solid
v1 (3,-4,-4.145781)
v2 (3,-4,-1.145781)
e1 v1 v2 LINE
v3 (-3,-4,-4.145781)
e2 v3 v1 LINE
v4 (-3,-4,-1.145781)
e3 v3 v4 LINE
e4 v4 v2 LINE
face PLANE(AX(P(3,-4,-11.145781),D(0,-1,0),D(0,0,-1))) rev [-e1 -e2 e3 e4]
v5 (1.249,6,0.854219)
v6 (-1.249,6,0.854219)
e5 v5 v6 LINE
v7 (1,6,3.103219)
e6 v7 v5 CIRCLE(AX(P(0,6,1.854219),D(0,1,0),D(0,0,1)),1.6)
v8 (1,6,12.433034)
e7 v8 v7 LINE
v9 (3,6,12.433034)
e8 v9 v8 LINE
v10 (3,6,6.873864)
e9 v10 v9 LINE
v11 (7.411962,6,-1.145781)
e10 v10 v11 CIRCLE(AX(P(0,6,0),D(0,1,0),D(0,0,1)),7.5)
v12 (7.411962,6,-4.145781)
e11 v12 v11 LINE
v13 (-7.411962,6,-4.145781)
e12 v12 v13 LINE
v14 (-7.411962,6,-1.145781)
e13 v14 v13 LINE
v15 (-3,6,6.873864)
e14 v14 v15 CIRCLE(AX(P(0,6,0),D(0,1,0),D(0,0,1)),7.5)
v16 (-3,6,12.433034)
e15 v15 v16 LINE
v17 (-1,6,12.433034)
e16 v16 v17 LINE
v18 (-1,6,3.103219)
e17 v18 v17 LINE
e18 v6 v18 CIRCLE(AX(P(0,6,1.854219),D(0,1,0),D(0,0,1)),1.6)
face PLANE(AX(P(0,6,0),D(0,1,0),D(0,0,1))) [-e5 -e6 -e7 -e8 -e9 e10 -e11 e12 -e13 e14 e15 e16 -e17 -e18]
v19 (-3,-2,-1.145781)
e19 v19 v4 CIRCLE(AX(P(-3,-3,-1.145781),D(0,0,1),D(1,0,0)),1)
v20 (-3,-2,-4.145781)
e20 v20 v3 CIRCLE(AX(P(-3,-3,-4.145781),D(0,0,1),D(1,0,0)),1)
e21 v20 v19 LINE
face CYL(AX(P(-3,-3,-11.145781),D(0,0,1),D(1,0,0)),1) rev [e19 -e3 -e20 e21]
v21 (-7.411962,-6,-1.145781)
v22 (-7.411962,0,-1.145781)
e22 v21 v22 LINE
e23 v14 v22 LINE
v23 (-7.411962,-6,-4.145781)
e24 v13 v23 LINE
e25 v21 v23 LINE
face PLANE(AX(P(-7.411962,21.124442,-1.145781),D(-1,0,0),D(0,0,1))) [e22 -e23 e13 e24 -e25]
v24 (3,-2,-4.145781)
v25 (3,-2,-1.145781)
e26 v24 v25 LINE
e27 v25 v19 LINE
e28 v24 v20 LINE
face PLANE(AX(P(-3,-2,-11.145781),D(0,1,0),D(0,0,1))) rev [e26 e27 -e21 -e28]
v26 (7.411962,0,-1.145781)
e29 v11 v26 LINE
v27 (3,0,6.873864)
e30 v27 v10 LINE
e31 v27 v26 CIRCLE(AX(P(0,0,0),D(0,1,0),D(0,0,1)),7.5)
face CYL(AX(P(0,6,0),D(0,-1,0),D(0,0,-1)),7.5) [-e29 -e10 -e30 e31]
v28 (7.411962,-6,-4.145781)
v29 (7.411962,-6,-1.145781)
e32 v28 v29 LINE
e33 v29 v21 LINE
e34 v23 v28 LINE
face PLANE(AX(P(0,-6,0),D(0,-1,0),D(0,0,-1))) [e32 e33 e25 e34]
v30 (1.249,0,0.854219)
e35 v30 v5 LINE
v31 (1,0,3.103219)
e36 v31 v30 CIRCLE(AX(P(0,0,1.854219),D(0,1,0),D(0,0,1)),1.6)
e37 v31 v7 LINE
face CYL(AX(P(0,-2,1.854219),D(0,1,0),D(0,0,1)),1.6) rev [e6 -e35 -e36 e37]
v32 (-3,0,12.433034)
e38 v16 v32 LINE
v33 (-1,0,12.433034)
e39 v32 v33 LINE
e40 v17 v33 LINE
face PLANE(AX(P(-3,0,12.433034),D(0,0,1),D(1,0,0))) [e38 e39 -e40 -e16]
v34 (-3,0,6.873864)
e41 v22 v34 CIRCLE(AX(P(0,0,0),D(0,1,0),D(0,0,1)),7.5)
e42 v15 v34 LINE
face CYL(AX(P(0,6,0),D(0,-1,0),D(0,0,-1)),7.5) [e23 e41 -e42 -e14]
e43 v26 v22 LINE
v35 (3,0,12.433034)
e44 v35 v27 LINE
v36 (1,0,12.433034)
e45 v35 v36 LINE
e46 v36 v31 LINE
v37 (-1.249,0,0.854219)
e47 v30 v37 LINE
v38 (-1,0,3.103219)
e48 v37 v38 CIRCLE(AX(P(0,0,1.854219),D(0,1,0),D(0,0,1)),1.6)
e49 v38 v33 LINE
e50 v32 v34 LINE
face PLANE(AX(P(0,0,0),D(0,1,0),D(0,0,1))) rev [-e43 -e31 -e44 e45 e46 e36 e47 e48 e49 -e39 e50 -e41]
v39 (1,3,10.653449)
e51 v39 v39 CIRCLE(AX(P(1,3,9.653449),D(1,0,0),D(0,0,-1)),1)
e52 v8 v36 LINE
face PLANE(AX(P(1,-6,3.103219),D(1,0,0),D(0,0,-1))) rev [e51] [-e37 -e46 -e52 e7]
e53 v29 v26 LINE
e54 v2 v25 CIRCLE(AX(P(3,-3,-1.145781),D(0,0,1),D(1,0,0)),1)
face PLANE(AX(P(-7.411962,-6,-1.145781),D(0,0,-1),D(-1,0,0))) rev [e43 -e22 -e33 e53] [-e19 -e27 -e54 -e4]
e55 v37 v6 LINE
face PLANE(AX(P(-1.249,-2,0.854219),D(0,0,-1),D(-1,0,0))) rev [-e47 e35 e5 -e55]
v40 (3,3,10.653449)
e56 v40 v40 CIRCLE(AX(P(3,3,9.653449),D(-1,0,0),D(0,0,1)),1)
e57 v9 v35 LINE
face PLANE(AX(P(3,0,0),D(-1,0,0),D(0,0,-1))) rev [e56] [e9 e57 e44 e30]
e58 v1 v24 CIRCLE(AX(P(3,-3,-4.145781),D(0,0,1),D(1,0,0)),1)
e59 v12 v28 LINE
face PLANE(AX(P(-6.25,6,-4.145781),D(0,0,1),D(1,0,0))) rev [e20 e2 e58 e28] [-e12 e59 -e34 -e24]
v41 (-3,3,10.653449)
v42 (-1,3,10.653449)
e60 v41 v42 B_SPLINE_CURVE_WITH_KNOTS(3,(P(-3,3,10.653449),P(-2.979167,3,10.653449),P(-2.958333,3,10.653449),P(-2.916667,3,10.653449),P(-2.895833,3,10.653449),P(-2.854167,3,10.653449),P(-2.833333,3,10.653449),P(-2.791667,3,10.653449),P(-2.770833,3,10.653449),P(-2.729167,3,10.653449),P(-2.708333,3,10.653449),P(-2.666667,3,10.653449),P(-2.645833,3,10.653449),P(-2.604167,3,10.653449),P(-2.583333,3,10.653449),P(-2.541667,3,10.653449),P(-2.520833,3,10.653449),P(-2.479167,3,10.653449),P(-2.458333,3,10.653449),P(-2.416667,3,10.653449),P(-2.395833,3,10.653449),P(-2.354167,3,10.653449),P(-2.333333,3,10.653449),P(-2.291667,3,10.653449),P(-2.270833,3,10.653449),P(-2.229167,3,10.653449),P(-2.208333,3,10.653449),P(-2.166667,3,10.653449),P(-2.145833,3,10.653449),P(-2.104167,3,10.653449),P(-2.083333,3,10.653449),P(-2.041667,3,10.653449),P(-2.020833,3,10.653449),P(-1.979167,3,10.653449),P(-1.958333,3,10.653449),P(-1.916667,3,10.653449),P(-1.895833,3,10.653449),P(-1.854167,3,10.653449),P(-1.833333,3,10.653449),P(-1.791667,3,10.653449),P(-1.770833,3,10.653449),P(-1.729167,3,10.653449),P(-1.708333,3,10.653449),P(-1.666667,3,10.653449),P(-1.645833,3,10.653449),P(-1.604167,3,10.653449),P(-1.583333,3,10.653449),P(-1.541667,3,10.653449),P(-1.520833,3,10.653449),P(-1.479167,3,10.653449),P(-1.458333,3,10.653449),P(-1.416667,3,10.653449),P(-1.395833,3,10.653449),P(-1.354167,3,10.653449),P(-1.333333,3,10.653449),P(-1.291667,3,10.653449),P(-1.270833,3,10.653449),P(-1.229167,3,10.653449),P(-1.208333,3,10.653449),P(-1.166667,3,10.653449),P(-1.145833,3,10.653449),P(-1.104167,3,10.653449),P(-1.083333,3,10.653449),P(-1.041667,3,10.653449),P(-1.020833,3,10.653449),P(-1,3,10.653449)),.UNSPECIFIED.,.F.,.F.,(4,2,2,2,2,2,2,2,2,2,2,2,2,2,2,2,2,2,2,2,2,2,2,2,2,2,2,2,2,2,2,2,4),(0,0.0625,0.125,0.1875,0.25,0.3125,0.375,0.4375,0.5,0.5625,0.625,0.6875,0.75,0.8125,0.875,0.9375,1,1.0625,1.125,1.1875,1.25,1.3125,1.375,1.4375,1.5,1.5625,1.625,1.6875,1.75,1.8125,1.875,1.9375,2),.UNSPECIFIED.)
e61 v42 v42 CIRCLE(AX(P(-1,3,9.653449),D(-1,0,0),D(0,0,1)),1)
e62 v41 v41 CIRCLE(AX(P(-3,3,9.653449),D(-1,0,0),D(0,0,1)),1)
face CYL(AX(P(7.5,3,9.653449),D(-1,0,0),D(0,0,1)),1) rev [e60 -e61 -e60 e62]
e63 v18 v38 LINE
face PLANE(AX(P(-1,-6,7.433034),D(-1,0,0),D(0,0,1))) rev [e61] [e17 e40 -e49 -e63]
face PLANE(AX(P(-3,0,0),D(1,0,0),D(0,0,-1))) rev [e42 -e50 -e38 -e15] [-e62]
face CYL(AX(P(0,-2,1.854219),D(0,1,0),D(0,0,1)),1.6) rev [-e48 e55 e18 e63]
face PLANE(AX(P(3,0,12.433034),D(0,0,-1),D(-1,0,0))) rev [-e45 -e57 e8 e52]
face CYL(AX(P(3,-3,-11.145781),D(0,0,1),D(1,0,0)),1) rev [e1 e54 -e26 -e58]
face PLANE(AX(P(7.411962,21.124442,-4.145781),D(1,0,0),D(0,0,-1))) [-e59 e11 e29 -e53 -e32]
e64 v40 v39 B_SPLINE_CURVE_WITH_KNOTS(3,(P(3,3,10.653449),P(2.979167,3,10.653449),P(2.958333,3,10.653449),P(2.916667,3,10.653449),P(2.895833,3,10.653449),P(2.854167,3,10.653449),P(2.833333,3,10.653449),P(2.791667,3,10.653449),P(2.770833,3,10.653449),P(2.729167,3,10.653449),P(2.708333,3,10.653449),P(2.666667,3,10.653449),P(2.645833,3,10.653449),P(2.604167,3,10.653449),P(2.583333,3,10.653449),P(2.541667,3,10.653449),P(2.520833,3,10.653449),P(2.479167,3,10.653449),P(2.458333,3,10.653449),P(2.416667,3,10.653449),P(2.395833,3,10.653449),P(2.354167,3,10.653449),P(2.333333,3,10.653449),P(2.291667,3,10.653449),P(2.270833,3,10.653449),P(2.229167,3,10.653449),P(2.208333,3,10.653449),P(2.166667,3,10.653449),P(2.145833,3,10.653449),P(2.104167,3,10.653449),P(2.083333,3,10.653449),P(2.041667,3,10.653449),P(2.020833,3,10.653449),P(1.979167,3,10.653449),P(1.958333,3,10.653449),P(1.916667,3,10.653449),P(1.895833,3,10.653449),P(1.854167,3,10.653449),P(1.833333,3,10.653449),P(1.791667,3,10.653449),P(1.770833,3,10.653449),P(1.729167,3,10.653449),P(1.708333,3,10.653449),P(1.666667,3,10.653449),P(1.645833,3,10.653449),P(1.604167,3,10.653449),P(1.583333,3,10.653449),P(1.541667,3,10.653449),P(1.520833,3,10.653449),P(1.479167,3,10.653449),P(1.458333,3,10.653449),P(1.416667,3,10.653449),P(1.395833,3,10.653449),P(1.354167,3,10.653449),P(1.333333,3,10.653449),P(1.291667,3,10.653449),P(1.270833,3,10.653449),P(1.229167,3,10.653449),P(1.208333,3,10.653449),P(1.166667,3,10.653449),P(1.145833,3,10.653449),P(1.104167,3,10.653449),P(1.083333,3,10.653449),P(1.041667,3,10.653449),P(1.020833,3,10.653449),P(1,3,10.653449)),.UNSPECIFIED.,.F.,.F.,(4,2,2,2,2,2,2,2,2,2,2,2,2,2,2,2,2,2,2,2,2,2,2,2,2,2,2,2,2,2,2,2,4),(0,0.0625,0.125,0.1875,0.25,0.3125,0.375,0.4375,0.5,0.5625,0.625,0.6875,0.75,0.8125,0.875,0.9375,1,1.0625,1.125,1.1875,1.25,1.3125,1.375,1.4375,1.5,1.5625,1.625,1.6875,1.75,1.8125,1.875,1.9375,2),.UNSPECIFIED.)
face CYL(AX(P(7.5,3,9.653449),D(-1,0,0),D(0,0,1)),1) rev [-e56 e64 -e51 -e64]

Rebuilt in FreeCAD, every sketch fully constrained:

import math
import FreeCAD as App
import Part
import Sketcher


def add_polygon(sketch, points):
    """Adds a closed chain of lines whose ends are joined by coincident constraints."""
    first, n = sketch.GeometryCount, len(points)
    for a, b in zip(points, points[1:] + points[:1]):
        sketch.addGeometry(Part.LineSegment(App.Vector(*a, 0), App.Vector(*b, 0)), False)
    for i in range(n):
        sketch.addConstraint(Sketcher.Constraint("Coincident", first + i, 2, first + (i + 1) % n, 1))

doc = App.newDocument("Part")
params = doc.addObject("Spreadsheet::Sheet", "Params")
for row, (alias, value) in enumerate([
    ("sketch1_radius", "7.5 mm"),
    ("sketch1_width", "12.5 mm"),
    ("pad1_length", "6 mm"),
    ("sketch2_radius", "7.5 mm"),
    ("sketch2_width", "12.5 mm"),
    ("pad2_length", "6 mm"),
    ("sketch3_radius", "1.6 mm"),
    ("pocket1_length", "8 mm"),
    ("sketch4_height", "3 mm"),
    ("pad3_length", "12 mm"),
    ("sketch5_radius", "1 mm"),
    ("sketch5_width", "6 mm"),
    ("pocket2_length", "10 mm"),
    ("sketch6_radius", "7.5 mm"),
    ("sketch6_radius2", "1.6 mm"),
    ("sketch7_width", "6 mm"),
    ("sketch7_height", "7 mm"),
    ("pad4_length", "2 mm"),
    ("sketch8_diameter", "2 mm"),
], start=1):
    params.set(f"A{row}", alias)
    params.set(f"B{row}", "=" + value)
    params.setAlias(f"B{row}", alias)

body = doc.addObject("PartDesign::Body", "Body")

sketch1 = body.newObject("Sketcher::SketchObject", "Sketch")
sketch1.AttachmentSupport = (doc.getObject("XZ_Plane"), [""])
sketch1.MapMode = "FlatFace"
sketch1.addGeometry([
    Part.LineSegment(App.Vector(6, -4, 0), App.Vector(-6, -4, 0)),
    Part.ArcOfCircle(Part.Circle(App.Vector(0, 0, 0), App.Vector(0, 0, 1), 8), math.radians(-34), math.radians(214)),
], False)
sketch1.addConstraint([
    Sketcher.Constraint("Coincident", 0, 1, 1, 1),
    Sketcher.Constraint("Coincident", 1, 2, 0, 2),
    Sketcher.Constraint("Horizontal", 0),
    Sketcher.Constraint("Coincident", 1, 3, -1, 1),
    Sketcher.Constraint("Radius", 1, 7.5),
    Sketcher.Constraint("DistanceX", 0, 2, 0, 1, 12.5),
])
sketch1.setExpression("Constraints[4]", "Params.sketch1_radius")
sketch1.setExpression("Constraints[5]", "Params.sketch1_width")
pad1 = body.newObject("PartDesign::Pad", "Pad")
pad1.Profile = sketch1
pad1.setExpression("Length", "Params.pad1_length")
pad1.Reversed = True

sketch2 = body.newObject("Sketcher::SketchObject", "Sketch001")
sketch2.AttachmentSupport = (doc.getObject("XZ_Plane"), [""])
sketch2.MapMode = "FlatFace"
sketch2.AttachmentOffset = App.Placement(App.Vector(0, 0, 6), App.Rotation())
sketch2.addGeometry([
    Part.LineSegment(App.Vector(-6.2, -4.1, 0), App.Vector(6.2, -4.1, 0)),
    Part.ArcOfCircle(Part.Circle(App.Vector(0, 0, 0), App.Vector(0, 0, 1), 7.5), math.radians(-34), math.radians(-9)),
    Part.LineSegment(App.Vector(7.4, -1.1, 0), App.Vector(-7.4, -1.1, 0)),
    Part.ArcOfCircle(Part.Circle(App.Vector(0, 0, 0), App.Vector(0, 0, 1), 7.5), math.radians(-171), math.radians(-146)),
], False)
sketch2.addConstraint([
    Sketcher.Constraint("Coincident", 0, 2, 1, 1),
    Sketcher.Constraint("Coincident", 1, 2, 2, 1),
    Sketcher.Constraint("Coincident", 2, 2, 3, 1),
    Sketcher.Constraint("Coincident", 3, 2, 0, 1),
    Sketcher.Constraint("Horizontal", 0),
    Sketcher.Constraint("Horizontal", 2),
    Sketcher.Constraint("Coincident", 1, 3, -1, 1),
    Sketcher.Constraint("Coincident", 3, 3, -1, 1),
    Sketcher.Constraint("Equal", 1, 3),
    Sketcher.Constraint("Radius", 1, 7.5),
    Sketcher.Constraint("DistanceX", 0, 1, 0, 2, 12.5),
    Sketcher.Constraint("DistanceY", 0, 2, 1, 2, 3.0),
])
sketch2.setExpression("Constraints[9]", "Params.sketch2_radius")
sketch2.setExpression("Constraints[10]", "Params.sketch2_width")
pad2 = body.newObject("PartDesign::Pad", "Pad001")
pad2.Profile = sketch2
pad2.setExpression("Length", "Params.pad2_length")
pad2.Reversed = True

sketch3 = body.newObject("Sketcher::SketchObject", "Sketch002")
sketch3.AttachmentSupport = (doc.getObject("XZ_Plane"), [""])
sketch3.MapMode = "FlatFace"
sketch3.AttachmentOffset = App.Placement(App.Vector(0, 0, -6), App.Rotation())
sketch3.addGeometry([
    Part.LineSegment(App.Vector(1.2, 0.9, 0), App.Vector(-1.2, 0.9, 0)),
    Part.ArcOfCircle(Part.Circle(App.Vector(0, 1.9, 0), App.Vector(0, 0, 1), 1.6), math.radians(-39), math.radians(219)),
], False)
sketch3.addConstraint([
    Sketcher.Constraint("Coincident", 0, 1, 1, 1),
    Sketcher.Constraint("Coincident", 1, 2, 0, 2),
    Sketcher.Constraint("Horizontal", 0),
    Sketcher.Constraint("PointOnObject", 1, 3, -2),
    Sketcher.Constraint("Radius", 1, 1.6),
    Sketcher.Constraint("DistanceY", 0, 1, 1, 3, 1.0),
    Sketcher.Constraint("DistanceY", -1, 1, 1, 3, 1.854219),
])
sketch3.setExpression("Constraints[4]", "Params.sketch3_radius")
pocket1 = body.newObject("PartDesign::Pocket", "Pocket")
pocket1.Profile = sketch3
pocket1.setExpression("Length", "Params.pocket1_length")
pocket1.Reversed = True

sketch4 = body.newObject("Sketcher::SketchObject", "Sketch003")
sketch4.AttachmentSupport = (doc.getObject("XZ_Plane"), [""])
sketch4.MapMode = "FlatFace"
sketch4.AttachmentOffset = App.Placement(App.Vector(0, 0, -6), App.Rotation())
add_polygon(sketch4, [(-7.4, -1.1), (-7.4, -4.1), (7.4, -4.1), (7.4, -1.1)])
sketch4.addConstraint([
    Sketcher.Constraint("Vertical", 0),
    Sketcher.Constraint("Horizontal", 1),
    Sketcher.Constraint("Vertical", 2),
    Sketcher.Constraint("Horizontal", 3),
    Sketcher.Constraint("DistanceY", 0, 2, 0, 1, 3.0),
    Sketcher.Constraint("DistanceX", 1, 1, 1, 2, 14.823925),
    Sketcher.Constraint("DistanceY", 0, 2, -1, 1, 4.145781),
    Sketcher.Constraint("DistanceX", 0, 2, -1, 1, 7.411962),
])
sketch4.setExpression("Constraints[8]", "Params.sketch4_height")
pad3 = body.newObject("PartDesign::Pad", "Pad002")
pad3.Profile = sketch4
pad3.setExpression("Length", "Params.pad3_length")

sketch5 = body.newObject("Sketcher::SketchObject", "Sketch004")
sketch5.AttachmentSupport = (doc.getObject("XY_Plane"), [""])
sketch5.MapMode = "FlatFace"
sketch5.AttachmentOffset = App.Placement(App.Vector(0, 0, -1.145781), App.Rotation())
sketch5.addGeometry([
    Part.LineSegment(App.Vector(3, -2, 0), App.Vector(-3, -2, 0)),
    Part.ArcOfCircle(Part.Circle(App.Vector(-3, -3, 0), App.Vector(0, 0, 1), 1), math.radians(90), math.radians(270)),
    Part.LineSegment(App.Vector(-3, -4, 0), App.Vector(3, -4, 0)),
    Part.ArcOfCircle(Part.Circle(App.Vector(3, -3, 0), App.Vector(0, 0, 1), 1), math.radians(-90), math.radians(90)),
], False)
sketch5.addConstraint([
    Sketcher.Constraint("Tangent", 0, 2, 1, 1),
    Sketcher.Constraint("Tangent", 1, 2, 2, 1),
    Sketcher.Constraint("Tangent", 2, 2, 3, 1),
    Sketcher.Constraint("Tangent", 3, 2, 0, 1),
    Sketcher.Constraint("Horizontal", 0),
    Sketcher.Constraint("Horizontal", 2),
    Sketcher.Constraint("Radius", 1, 1.0),
    Sketcher.Constraint("DistanceX", 0, 2, 0, 1, 6.0),
    Sketcher.Constraint("DistanceX", 1, 3, -1, 1, 3.0),
    Sketcher.Constraint("DistanceY", 1, 3, -1, 1, 3.0),
])
sketch5.setExpression("Constraints[6]", "Params.sketch5_radius")
sketch5.setExpression("Constraints[7]", "Params.sketch5_width")
pocket2 = body.newObject("PartDesign::Pocket", "Pocket001")
pocket2.Profile = sketch5
pocket2.setExpression("Length", "Params.pocket2_length")

sketch6 = body.newObject("Sketcher::SketchObject", "Sketch005")
sketch6.AttachmentSupport = (doc.getObject("XZ_Plane"), [""])
sketch6.MapMode = "FlatFace"
sketch6.AttachmentOffset = App.Placement(App.Vector(0, 0, -6), App.Rotation())
sketch6.addGeometry([
    Part.LineSegment(App.Vector(-1, 3.1, 0), App.Vector(-1, 7.4, 0)),
    Part.ArcOfCircle(Part.Circle(App.Vector(0, 0, 0), App.Vector(0, 0, 1), 7.5), math.radians(82.34), math.radians(97.66)),
    Part.LineSegment(App.Vector(1, 7.4, 0), App.Vector(1, 3.1, 0)),
    Part.ArcOfCircle(Part.Circle(App.Vector(0, 1.9, 0), App.Vector(0, 0, 1), 1.6), math.radians(51), math.radians(129)),
], False)
sketch6.addConstraint([
    Sketcher.Constraint("Coincident", 0, 2, 1, 2),
    Sketcher.Constraint("Coincident", 1, 1, 2, 1),
    Sketcher.Constraint("Coincident", 2, 2, 3, 1),
    Sketcher.Constraint("Coincident", 3, 2, 0, 1),
    Sketcher.Constraint("Vertical", 0),
    Sketcher.Constraint("Vertical", 2),
    Sketcher.Constraint("Coincident", 1, 3, -1, 1),
    Sketcher.Constraint("Symmetric", 2, 2, 3, 2, -2),
    Sketcher.Constraint("Radius", 1, 7.5),
    Sketcher.Constraint("Radius", 3, 1.6),
    Sketcher.Constraint("DistanceX", 0, 2, -1, 1, 1.0),
    Sketcher.Constraint("DistanceY", 0, 1, 0, 2, 4.329816),
])
sketch6.setExpression("Constraints[8]", "Params.sketch6_radius")
sketch6.setExpression("Constraints[9]", "Params.sketch6_radius2")
pocket3 = body.newObject("PartDesign::Pocket", "Pocket002")
pocket3.Profile = sketch6
pocket3.Type = "ThroughAll"
pocket3.Reversed = True

sketch7 = body.newObject("Sketcher::SketchObject", "Sketch006")
sketch7.AttachmentSupport = (doc.getObject("YZ_Plane"), [""])
sketch7.MapMode = "FlatFace"
sketch7.AttachmentOffset = App.Placement(App.Vector(0, 0, -1), App.Rotation())
add_polygon(sketch7, [(6, 12), (0, 12), (0, 5), (6, 5)])
sketch7.addConstraint([
    Sketcher.Constraint("Horizontal", 0),
    Sketcher.Constraint("Vertical", 1),
    Sketcher.Constraint("Horizontal", 2),
    Sketcher.Constraint("Vertical", 3),
    Sketcher.Constraint("PointOnObject", 0, 2, -2),
    Sketcher.Constraint("DistanceX", 0, 2, 0, 1, 6.0),
    Sketcher.Constraint("DistanceY", 1, 2, 1, 1, 7.0),
    Sketcher.Constraint("DistanceY", -1, 1, 0, 2, 12.433034),
])
sketch7.setExpression("Constraints[9]", "Params.sketch7_width")
sketch7.setExpression("Constraints[10]", "Params.sketch7_height")
pad4 = body.newObject("PartDesign::Pad", "Pad003")
pad4.Profile = sketch7
pad4.setExpression("Length", "Params.pad4_length")
pad4.Reversed = True
doc.recompute()

mirrored = body.newObject("PartDesign::Mirrored", "Mirrored")
mirrored.Originals = [pad4]
mirrored.MirrorPlane = (doc.getObject("YZ_Plane"), [""])
body.Tip = mirrored

sketch8 = body.newObject("Sketcher::SketchObject", "Sketch007")
sketch8.AttachmentSupport = (doc.getObject("YZ_Plane"), [""])
sketch8.MapMode = "FlatFace"
sketch8.AttachmentOffset = App.Placement(App.Vector(0, 0, -3), App.Rotation())
sketch8.addGeometry(Part.Circle(App.Vector(3, 9.7, 0), App.Vector(0, 0, 1), 1), False)
sketch8.addConstraint([
    Sketcher.Constraint("Diameter", 0, 2.0),
    Sketcher.Constraint("DistanceX", -1, 1, 0, 3, 3.0),
    Sketcher.Constraint("DistanceY", -1, 1, 0, 3, 9.653449),
])
sketch8.setExpression("Constraints[0]", "Params.sketch8_diameter")
pocket4 = body.newObject("PartDesign::Pocket", "Pocket003")
pocket4.Profile = sketch8
pocket4.Type = "ThroughAll"
pocket4.Reversed = True

doc.recompute()
